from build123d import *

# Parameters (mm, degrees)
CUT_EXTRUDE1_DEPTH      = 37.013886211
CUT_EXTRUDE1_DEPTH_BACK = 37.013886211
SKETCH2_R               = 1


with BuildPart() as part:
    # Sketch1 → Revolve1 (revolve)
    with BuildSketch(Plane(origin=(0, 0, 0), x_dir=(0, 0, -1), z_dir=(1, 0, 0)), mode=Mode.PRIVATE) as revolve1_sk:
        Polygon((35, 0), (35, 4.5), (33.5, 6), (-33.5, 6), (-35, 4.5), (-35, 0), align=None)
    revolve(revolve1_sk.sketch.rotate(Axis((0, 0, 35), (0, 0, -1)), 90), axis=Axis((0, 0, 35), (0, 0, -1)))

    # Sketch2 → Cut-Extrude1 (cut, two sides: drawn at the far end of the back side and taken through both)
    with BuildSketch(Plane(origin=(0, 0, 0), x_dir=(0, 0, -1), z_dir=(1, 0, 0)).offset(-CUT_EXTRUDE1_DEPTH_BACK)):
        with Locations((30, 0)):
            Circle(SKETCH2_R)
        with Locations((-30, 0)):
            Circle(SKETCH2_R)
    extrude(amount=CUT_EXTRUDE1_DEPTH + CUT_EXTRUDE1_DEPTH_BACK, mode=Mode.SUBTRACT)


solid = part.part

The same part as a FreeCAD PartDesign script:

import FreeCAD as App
import Part
import Sketcher
from FreeCAD import Vector


def add_polygon(sketch, points):
    """Adds a closed chain of lines whose ends are joined by coincident constraints."""
    first, n = sketch.GeometryCount, len(points)
    for a, b in zip(points, points[1:] + points[:1]):
        sketch.addGeometry(Part.LineSegment(App.Vector(*a, 0), App.Vector(*b, 0)), False)
    for i in range(n):
        sketch.addConstraint(Sketcher.Constraint("Coincident", first + i, 2, first + (i + 1) % n, 1))

doc = App.newDocument("Part")
body = doc.addObject("PartDesign::Body", "Body")

# Sketch on YZ plane
sketch1 = body.newObject("Sketcher::SketchObject", "Sketch")
sketch1.AttachmentSupport = (doc.getObject("YZ_Plane"), [""])
sketch1.MapMode = "FlatFace"
add_polygon(sketch1, [(0, -35), (4.5, -35), (6, -33.5), (6, 33.5), (4.5, 35), (0, 35)])  # lines 0-5
sketch1.addConstraint(Sketcher.Constraint("Horizontal", 0))
sketch1.addConstraint(Sketcher.Constraint("Vertical", 2))
sketch1.addConstraint(Sketcher.Constraint("Horizontal", 4))
sketch1.addConstraint(Sketcher.Constraint("Vertical", 5))
sketch1.addConstraint(Sketcher.Constraint("Symmetric", 4, 2, 5, 2, -1, 1))
sketch1.addConstraint(Sketcher.Constraint("Perpendicular", 1, 3))
sketch1.addConstraint(Sketcher.Constraint("Vertical", 0, 2, 3, 2))
sketch1.addConstraint(Sketcher.Constraint("Equal", 1, 3))
sketch1.addConstraint(Sketcher.Constraint("DistanceY", 2, 1, 2, 2, 67.0))
sketch1.addConstraint(Sketcher.Constraint("DistanceY", 5, 2, 5, 1, 70.0))
sketch1.addConstraint(Sketcher.Constraint("DistanceX", 0, 1, 0, 2, 4.5))
revolution = body.newObject("PartDesign::Revolution", "Revolution")
revolution.Profile = sketch1
revolution.ReferenceAxis = (sketch1, ["V_Axis"])
revolution.Angle = 360

# Sketch on YZ plane
sketch2 = body.newObject("Sketcher::SketchObject", "Sketch001")
sketch2.AttachmentSupport = (doc.getObject("YZ_Plane"), [""])
sketch2.MapMode = "FlatFace"
sketch2.addGeometry(Part.Circle(Vector(0, -30, 0), Vector(0, 0, 1), 1), False)
sketch2.addGeometry(Part.Circle(Vector(0, 30, 0), Vector(0, 0, 1), 1), False)
sketch2.addConstraint(Sketcher.Constraint("Equal", 0, 1))
sketch2.addConstraint(Sketcher.Constraint("Symmetric", 0, 3, 1, 3, -1, 1))
sketch2.addConstraint(Sketcher.Constraint("PointOnObject", 0, 3, -2))
sketch2.addConstraint(Sketcher.Constraint("Diameter", 0, 2.0))
sketch2.addConstraint(Sketcher.Constraint("DistanceY", 0, 3, -1, 1, 30.0))
pocket1 = body.newObject("PartDesign::Pocket", "Pocket")
pocket1.Profile = sketch2
pocket1.Type = "ThroughAll"
pocket1.Midplane = True

doc.recompute()
